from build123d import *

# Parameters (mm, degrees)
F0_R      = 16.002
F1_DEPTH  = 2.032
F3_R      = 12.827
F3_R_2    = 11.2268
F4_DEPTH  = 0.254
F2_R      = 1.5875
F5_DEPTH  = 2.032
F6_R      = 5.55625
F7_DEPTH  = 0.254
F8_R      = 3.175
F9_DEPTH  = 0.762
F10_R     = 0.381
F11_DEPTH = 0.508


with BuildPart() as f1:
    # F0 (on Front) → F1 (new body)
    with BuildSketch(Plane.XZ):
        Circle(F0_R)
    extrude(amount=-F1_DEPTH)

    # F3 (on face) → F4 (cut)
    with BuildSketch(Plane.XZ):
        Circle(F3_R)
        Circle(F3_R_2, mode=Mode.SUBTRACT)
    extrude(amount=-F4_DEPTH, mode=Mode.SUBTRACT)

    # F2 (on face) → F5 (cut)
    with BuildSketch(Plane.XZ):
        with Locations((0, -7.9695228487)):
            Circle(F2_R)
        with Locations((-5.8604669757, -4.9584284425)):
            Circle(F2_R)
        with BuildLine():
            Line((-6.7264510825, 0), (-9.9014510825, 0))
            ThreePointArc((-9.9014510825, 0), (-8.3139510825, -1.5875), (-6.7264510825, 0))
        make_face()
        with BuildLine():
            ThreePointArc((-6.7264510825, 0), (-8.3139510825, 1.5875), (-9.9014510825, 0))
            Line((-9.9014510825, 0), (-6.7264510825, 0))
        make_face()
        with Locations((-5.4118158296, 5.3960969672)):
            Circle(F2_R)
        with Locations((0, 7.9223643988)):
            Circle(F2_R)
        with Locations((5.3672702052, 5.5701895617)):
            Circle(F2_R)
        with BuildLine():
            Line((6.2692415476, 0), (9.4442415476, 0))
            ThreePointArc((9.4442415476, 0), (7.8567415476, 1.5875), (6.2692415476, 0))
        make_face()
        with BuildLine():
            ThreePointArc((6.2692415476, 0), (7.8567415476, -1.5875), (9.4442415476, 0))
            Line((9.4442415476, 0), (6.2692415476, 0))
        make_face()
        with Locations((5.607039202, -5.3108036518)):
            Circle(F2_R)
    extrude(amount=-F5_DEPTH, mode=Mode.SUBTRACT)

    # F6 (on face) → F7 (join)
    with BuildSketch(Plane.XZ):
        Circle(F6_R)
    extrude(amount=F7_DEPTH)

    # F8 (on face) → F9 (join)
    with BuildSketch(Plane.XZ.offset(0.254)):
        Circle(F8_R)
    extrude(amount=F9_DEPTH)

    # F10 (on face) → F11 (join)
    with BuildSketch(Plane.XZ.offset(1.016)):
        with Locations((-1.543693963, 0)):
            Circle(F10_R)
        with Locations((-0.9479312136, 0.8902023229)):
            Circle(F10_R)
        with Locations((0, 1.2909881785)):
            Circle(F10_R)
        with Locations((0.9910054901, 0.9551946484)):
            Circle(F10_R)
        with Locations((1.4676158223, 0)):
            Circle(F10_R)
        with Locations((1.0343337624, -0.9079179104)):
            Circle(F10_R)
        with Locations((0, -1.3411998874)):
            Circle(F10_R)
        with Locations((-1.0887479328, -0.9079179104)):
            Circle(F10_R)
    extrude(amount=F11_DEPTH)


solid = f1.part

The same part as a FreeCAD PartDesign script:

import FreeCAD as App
import Part
import Sketcher

V = App.Vector
Q = App.Units.Quantity

doc = App.newDocument("Part")
body = doc.addObject("PartDesign::Body", "Body")

# Sketch on XZ plane
sketch1 = body.newObject("Sketcher::SketchObject", "Sketch")
sketch1.AttachmentSupport = (doc.getObject("XZ_Plane"), [""])
sketch1.MapMode = "FlatFace"
sketch1.addGeometry(Part.Circle(V(0, 0, 0), V(0, 0, 1), 16), False)
sketch1.addConstraint([
    Sketcher.Constraint("Coincident", 0, 3, -1, 1),
    Sketcher.Constraint("Diameter", 0, Q("1.26 in")),
])
pad1 = body.newObject("PartDesign::Pad", "Pad")
pad1.Profile = sketch1
pad1.Length = Q("0.08 in")
pad1.Reversed = True

# Sketch on XZ plane
sketch2 = body.newObject("Sketcher::SketchObject", "Sketch001")
sketch2.AttachmentSupport = (doc.getObject("XZ_Plane"), [""])
sketch2.MapMode = "FlatFace"
sketch2.addGeometry([
    Part.Circle(V(0, 0, 0), V(0, 0, 1), 13),
    Part.Circle(V(0, 0, 0), V(0, 0, 1), 11),
], False)
sketch2.addConstraint([
    Sketcher.Constraint("Coincident", 0, 3, -1, 1),
    Sketcher.Constraint("Coincident", 1, 3, -1, 1),
    Sketcher.Constraint("Diameter", 0, Q("1.01 in")),
    Sketcher.Constraint("Diameter", 1, Q("0.884 in")),
])
pocket1 = body.newObject("PartDesign::Pocket", "Pocket")
pocket1.Profile = sketch2
pocket1.Length = Q("0.01 in")

# Sketch on XZ plane
sketch3 = body.newObject("Sketcher::SketchObject", "Sketch002")
sketch3.AttachmentSupport = (doc.getObject("XZ_Plane"), [""])
sketch3.MapMode = "FlatFace"
sketch3.addGeometry([
    Part.Circle(V(0, -8, 0), V(0, 0, 1), 1.6),  # 0
    Part.Circle(V(-5.9, -5, 0), V(0, 0, 1), 1.6),  # 1
    Part.Circle(V(-8.3, 0, 0), V(0, 0, 1), 1.6),  # 2
    Part.Circle(V(-5.4, 5.4, 0), V(0, 0, 1), 1.6),  # 3
    Part.Circle(V(0, 7.9, 0), V(0, 0, 1), 1.6),  # 4
    Part.Circle(V(5.4, 5.6, 0), V(0, 0, 1), 1.6),  # 5
    Part.Circle(V(7.9, 0, 0), V(0, 0, 1), 1.6),  # 6
    Part.Circle(V(5.6, -5.3, 0), V(0, 0, 1), 1.6),  # 7
], False)
sketch3.addConstraint([
    Sketcher.Constraint("Equal", 0, 1),
    Sketcher.Constraint("Equal", 1, 2),
    Sketcher.Constraint("Equal", 2, 3),
    Sketcher.Constraint("Equal", 3, 4),
    Sketcher.Constraint("Equal", 4, 5),
    Sketcher.Constraint("Equal", 5, 6),
    Sketcher.Constraint("Equal", 6, 7),
    Sketcher.Constraint("PointOnObject", 0, 3, -2),
    Sketcher.Constraint("PointOnObject", 2, 3, -1),
    Sketcher.Constraint("PointOnObject", 4, 3, -2),
    Sketcher.Constraint("PointOnObject", 6, 3, -1),
    Sketcher.Constraint("Diameter", 0, Q("0.125 in")),
    Sketcher.Constraint("DistanceY", 1, 3, -1, 1, Q("4.958428 mm")),
    Sketcher.Constraint("DistanceX", 2, 3, -1, 1, Q("8.313951 mm")),
    Sketcher.Constraint("DistanceX", -1, 1, 5, 3, Q("5.36727 mm")),
    Sketcher.Constraint("DistanceY", -1, 1, 5, 3, Q("5.57019 mm")),
    Sketcher.Constraint("DistanceX", -1, 1, 6, 3, Q("7.856742 mm")),
    Sketcher.Constraint("DistanceX", -1, 1, 7, 3, Q("5.607039 mm")),
    Sketcher.Constraint("DistanceX", 1, 3, 3, 3, Q("0.448651 mm")),
    Sketcher.Constraint("DistanceY", 0, 3, 3, 3, Q("13.36562 mm")),
    Sketcher.Constraint("DistanceX", 1, 3, 6, 3, Q("13.717209 mm")),
    Sketcher.Constraint("DistanceY", 0, 3, 7, 3, Q("2.658719 mm")),
    Sketcher.Constraint("DistanceY", 7, 3, 4, 3, Q("13.233168 mm")),
    Sketcher.Constraint("DistanceY", 0, 3, -1, 1, Q("7.969523 mm")),
])
pocket2 = body.newObject("PartDesign::Pocket", "Pocket001")
pocket2.Profile = sketch3
pocket2.Length = Q("0.08 in")

# Sketch on XZ plane
sketch4 = body.newObject("Sketcher::SketchObject", "Sketch003")
sketch4.AttachmentSupport = (doc.getObject("XZ_Plane"), [""])
sketch4.MapMode = "FlatFace"
sketch4.addGeometry(Part.Circle(V(0, 0, 0), V(0, 0, 1), 6), False)
sketch4.addConstraint([
    Sketcher.Constraint("Coincident", 0, 3, -1, 1),
    Sketcher.Constraint("Diameter", 0, Q("0.4375 in")),
])
pad2 = body.newObject("PartDesign::Pad", "Pad001")
pad2.Profile = sketch4
pad2.Length = Q("0.01 in")

# Sketch on XZ plane
sketch5 = body.newObject("Sketcher::SketchObject", "Sketch004")
sketch5.AttachmentSupport = (doc.getObject("XZ_Plane"), [""])
sketch5.MapMode = "FlatFace"
sketch5.AttachmentOffset = App.Placement(V(0, 0, 0.01 * 25.4), App.Rotation())
sketch5.addGeometry(Part.Circle(V(0, 0, 0), V(0, 0, 1), 3.2), False)
sketch5.addConstraint([
    Sketcher.Constraint("Coincident", 0, 3, -1, 1),
    Sketcher.Constraint("Diameter", 0, Q("0.25 in")),
])
pad3 = body.newObject("PartDesign::Pad", "Pad002")
pad3.Profile = sketch5
pad3.Length = Q("0.03 in")

# Sketch on XZ plane
sketch6 = body.newObject("Sketcher::SketchObject", "Sketch005")
sketch6.AttachmentSupport = (doc.getObject("XZ_Plane"), [""])
sketch6.MapMode = "FlatFace"
sketch6.AttachmentOffset = App.Placement(V(0, 0, 0.04 * 25.4), App.Rotation())
sketch6.addGeometry([
    Part.Circle(V(-1.54, 0, 0), V(0, 0, 1), 0.38),  # 0
    Part.Circle(V(-0.95, 0.89, 0), V(0, 0, 1), 0.38),  # 1
    Part.Circle(V(0, 1.29, 0), V(0, 0, 1), 0.38),  # 2
    Part.Circle(V(0.99, 0.96, 0), V(0, 0, 1), 0.38),  # 3
    Part.Circle(V(1.47, 0, 0), V(0, 0, 1), 0.38),  # 4
    Part.Circle(V(1.03, -0.91, 0), V(0, 0, 1), 0.38),  # 5
    Part.Circle(V(0, -1.34, 0), V(0, 0, 1), 0.38),  # 6
    Part.Circle(V(-1.09, -0.91, 0), V(0, 0, 1), 0.38),  # 7
], False)
sketch6.addConstraint([
    Sketcher.Constraint("Equal", 0, 1),
    Sketcher.Constraint("Equal", 1, 2),
    Sketcher.Constraint("Equal", 2, 3),
    Sketcher.Constraint("Equal", 3, 4),
    Sketcher.Constraint("Equal", 4, 5),
    Sketcher.Constraint("Equal", 5, 6),
    Sketcher.Constraint("Equal", 6, 7),
    Sketcher.Constraint("PointOnObject", 0, 3, -1),
    Sketcher.Constraint("PointOnObject", 2, 3, -2),
    Sketcher.Constraint("PointOnObject", 4, 3, -1),
    Sketcher.Constraint("PointOnObject", 6, 3, -2),
    Sketcher.Constraint("Horizontal", 5, 3, 7, 3),
    Sketcher.Constraint("Diameter", 0, Q("0.03 in")),
    Sketcher.Constraint("DistanceY", 6, 3, -1, 1, Q("1.3412 mm")),
    Sketcher.Constraint("DistanceX", 0, 3, 3, 3, Q("2.534699 mm")),
    Sketcher.Constraint("DistanceX", 1, 3, -1, 1, Q("0.947931 mm")),
    Sketcher.Constraint("DistanceY", -1, 1, 2, 3, Q("1.290988 mm")),
    Sketcher.Constraint("DistanceX", 3, 3, 4, 3, Q("0.47661 mm")),
    Sketcher.Constraint("DistanceX", 3, 3, 5, 3, Q("0.043328 mm")),
    Sketcher.Constraint("DistanceY", 5, 3, 1, 3, Q("1.79812 mm")),
    Sketcher.Constraint("DistanceY", 6, 3, 5, 3, Q("0.433282 mm")),
    Sketcher.Constraint("DistanceX", 7, 3, 5, 3, Q("2.123082 mm")),
    Sketcher.Constraint("DistanceX", 0, 3, -1, 1, Q("1.543694 mm")),
    Sketcher.Constraint("DistanceY", -1, 1, 3, 3, Q("0.955195 mm")),
])
pad4 = body.newObject("PartDesign::Pad", "Pad003")
pad4.Profile = sketch6
pad4.Length = Q("0.02 in")

doc.recompute()
